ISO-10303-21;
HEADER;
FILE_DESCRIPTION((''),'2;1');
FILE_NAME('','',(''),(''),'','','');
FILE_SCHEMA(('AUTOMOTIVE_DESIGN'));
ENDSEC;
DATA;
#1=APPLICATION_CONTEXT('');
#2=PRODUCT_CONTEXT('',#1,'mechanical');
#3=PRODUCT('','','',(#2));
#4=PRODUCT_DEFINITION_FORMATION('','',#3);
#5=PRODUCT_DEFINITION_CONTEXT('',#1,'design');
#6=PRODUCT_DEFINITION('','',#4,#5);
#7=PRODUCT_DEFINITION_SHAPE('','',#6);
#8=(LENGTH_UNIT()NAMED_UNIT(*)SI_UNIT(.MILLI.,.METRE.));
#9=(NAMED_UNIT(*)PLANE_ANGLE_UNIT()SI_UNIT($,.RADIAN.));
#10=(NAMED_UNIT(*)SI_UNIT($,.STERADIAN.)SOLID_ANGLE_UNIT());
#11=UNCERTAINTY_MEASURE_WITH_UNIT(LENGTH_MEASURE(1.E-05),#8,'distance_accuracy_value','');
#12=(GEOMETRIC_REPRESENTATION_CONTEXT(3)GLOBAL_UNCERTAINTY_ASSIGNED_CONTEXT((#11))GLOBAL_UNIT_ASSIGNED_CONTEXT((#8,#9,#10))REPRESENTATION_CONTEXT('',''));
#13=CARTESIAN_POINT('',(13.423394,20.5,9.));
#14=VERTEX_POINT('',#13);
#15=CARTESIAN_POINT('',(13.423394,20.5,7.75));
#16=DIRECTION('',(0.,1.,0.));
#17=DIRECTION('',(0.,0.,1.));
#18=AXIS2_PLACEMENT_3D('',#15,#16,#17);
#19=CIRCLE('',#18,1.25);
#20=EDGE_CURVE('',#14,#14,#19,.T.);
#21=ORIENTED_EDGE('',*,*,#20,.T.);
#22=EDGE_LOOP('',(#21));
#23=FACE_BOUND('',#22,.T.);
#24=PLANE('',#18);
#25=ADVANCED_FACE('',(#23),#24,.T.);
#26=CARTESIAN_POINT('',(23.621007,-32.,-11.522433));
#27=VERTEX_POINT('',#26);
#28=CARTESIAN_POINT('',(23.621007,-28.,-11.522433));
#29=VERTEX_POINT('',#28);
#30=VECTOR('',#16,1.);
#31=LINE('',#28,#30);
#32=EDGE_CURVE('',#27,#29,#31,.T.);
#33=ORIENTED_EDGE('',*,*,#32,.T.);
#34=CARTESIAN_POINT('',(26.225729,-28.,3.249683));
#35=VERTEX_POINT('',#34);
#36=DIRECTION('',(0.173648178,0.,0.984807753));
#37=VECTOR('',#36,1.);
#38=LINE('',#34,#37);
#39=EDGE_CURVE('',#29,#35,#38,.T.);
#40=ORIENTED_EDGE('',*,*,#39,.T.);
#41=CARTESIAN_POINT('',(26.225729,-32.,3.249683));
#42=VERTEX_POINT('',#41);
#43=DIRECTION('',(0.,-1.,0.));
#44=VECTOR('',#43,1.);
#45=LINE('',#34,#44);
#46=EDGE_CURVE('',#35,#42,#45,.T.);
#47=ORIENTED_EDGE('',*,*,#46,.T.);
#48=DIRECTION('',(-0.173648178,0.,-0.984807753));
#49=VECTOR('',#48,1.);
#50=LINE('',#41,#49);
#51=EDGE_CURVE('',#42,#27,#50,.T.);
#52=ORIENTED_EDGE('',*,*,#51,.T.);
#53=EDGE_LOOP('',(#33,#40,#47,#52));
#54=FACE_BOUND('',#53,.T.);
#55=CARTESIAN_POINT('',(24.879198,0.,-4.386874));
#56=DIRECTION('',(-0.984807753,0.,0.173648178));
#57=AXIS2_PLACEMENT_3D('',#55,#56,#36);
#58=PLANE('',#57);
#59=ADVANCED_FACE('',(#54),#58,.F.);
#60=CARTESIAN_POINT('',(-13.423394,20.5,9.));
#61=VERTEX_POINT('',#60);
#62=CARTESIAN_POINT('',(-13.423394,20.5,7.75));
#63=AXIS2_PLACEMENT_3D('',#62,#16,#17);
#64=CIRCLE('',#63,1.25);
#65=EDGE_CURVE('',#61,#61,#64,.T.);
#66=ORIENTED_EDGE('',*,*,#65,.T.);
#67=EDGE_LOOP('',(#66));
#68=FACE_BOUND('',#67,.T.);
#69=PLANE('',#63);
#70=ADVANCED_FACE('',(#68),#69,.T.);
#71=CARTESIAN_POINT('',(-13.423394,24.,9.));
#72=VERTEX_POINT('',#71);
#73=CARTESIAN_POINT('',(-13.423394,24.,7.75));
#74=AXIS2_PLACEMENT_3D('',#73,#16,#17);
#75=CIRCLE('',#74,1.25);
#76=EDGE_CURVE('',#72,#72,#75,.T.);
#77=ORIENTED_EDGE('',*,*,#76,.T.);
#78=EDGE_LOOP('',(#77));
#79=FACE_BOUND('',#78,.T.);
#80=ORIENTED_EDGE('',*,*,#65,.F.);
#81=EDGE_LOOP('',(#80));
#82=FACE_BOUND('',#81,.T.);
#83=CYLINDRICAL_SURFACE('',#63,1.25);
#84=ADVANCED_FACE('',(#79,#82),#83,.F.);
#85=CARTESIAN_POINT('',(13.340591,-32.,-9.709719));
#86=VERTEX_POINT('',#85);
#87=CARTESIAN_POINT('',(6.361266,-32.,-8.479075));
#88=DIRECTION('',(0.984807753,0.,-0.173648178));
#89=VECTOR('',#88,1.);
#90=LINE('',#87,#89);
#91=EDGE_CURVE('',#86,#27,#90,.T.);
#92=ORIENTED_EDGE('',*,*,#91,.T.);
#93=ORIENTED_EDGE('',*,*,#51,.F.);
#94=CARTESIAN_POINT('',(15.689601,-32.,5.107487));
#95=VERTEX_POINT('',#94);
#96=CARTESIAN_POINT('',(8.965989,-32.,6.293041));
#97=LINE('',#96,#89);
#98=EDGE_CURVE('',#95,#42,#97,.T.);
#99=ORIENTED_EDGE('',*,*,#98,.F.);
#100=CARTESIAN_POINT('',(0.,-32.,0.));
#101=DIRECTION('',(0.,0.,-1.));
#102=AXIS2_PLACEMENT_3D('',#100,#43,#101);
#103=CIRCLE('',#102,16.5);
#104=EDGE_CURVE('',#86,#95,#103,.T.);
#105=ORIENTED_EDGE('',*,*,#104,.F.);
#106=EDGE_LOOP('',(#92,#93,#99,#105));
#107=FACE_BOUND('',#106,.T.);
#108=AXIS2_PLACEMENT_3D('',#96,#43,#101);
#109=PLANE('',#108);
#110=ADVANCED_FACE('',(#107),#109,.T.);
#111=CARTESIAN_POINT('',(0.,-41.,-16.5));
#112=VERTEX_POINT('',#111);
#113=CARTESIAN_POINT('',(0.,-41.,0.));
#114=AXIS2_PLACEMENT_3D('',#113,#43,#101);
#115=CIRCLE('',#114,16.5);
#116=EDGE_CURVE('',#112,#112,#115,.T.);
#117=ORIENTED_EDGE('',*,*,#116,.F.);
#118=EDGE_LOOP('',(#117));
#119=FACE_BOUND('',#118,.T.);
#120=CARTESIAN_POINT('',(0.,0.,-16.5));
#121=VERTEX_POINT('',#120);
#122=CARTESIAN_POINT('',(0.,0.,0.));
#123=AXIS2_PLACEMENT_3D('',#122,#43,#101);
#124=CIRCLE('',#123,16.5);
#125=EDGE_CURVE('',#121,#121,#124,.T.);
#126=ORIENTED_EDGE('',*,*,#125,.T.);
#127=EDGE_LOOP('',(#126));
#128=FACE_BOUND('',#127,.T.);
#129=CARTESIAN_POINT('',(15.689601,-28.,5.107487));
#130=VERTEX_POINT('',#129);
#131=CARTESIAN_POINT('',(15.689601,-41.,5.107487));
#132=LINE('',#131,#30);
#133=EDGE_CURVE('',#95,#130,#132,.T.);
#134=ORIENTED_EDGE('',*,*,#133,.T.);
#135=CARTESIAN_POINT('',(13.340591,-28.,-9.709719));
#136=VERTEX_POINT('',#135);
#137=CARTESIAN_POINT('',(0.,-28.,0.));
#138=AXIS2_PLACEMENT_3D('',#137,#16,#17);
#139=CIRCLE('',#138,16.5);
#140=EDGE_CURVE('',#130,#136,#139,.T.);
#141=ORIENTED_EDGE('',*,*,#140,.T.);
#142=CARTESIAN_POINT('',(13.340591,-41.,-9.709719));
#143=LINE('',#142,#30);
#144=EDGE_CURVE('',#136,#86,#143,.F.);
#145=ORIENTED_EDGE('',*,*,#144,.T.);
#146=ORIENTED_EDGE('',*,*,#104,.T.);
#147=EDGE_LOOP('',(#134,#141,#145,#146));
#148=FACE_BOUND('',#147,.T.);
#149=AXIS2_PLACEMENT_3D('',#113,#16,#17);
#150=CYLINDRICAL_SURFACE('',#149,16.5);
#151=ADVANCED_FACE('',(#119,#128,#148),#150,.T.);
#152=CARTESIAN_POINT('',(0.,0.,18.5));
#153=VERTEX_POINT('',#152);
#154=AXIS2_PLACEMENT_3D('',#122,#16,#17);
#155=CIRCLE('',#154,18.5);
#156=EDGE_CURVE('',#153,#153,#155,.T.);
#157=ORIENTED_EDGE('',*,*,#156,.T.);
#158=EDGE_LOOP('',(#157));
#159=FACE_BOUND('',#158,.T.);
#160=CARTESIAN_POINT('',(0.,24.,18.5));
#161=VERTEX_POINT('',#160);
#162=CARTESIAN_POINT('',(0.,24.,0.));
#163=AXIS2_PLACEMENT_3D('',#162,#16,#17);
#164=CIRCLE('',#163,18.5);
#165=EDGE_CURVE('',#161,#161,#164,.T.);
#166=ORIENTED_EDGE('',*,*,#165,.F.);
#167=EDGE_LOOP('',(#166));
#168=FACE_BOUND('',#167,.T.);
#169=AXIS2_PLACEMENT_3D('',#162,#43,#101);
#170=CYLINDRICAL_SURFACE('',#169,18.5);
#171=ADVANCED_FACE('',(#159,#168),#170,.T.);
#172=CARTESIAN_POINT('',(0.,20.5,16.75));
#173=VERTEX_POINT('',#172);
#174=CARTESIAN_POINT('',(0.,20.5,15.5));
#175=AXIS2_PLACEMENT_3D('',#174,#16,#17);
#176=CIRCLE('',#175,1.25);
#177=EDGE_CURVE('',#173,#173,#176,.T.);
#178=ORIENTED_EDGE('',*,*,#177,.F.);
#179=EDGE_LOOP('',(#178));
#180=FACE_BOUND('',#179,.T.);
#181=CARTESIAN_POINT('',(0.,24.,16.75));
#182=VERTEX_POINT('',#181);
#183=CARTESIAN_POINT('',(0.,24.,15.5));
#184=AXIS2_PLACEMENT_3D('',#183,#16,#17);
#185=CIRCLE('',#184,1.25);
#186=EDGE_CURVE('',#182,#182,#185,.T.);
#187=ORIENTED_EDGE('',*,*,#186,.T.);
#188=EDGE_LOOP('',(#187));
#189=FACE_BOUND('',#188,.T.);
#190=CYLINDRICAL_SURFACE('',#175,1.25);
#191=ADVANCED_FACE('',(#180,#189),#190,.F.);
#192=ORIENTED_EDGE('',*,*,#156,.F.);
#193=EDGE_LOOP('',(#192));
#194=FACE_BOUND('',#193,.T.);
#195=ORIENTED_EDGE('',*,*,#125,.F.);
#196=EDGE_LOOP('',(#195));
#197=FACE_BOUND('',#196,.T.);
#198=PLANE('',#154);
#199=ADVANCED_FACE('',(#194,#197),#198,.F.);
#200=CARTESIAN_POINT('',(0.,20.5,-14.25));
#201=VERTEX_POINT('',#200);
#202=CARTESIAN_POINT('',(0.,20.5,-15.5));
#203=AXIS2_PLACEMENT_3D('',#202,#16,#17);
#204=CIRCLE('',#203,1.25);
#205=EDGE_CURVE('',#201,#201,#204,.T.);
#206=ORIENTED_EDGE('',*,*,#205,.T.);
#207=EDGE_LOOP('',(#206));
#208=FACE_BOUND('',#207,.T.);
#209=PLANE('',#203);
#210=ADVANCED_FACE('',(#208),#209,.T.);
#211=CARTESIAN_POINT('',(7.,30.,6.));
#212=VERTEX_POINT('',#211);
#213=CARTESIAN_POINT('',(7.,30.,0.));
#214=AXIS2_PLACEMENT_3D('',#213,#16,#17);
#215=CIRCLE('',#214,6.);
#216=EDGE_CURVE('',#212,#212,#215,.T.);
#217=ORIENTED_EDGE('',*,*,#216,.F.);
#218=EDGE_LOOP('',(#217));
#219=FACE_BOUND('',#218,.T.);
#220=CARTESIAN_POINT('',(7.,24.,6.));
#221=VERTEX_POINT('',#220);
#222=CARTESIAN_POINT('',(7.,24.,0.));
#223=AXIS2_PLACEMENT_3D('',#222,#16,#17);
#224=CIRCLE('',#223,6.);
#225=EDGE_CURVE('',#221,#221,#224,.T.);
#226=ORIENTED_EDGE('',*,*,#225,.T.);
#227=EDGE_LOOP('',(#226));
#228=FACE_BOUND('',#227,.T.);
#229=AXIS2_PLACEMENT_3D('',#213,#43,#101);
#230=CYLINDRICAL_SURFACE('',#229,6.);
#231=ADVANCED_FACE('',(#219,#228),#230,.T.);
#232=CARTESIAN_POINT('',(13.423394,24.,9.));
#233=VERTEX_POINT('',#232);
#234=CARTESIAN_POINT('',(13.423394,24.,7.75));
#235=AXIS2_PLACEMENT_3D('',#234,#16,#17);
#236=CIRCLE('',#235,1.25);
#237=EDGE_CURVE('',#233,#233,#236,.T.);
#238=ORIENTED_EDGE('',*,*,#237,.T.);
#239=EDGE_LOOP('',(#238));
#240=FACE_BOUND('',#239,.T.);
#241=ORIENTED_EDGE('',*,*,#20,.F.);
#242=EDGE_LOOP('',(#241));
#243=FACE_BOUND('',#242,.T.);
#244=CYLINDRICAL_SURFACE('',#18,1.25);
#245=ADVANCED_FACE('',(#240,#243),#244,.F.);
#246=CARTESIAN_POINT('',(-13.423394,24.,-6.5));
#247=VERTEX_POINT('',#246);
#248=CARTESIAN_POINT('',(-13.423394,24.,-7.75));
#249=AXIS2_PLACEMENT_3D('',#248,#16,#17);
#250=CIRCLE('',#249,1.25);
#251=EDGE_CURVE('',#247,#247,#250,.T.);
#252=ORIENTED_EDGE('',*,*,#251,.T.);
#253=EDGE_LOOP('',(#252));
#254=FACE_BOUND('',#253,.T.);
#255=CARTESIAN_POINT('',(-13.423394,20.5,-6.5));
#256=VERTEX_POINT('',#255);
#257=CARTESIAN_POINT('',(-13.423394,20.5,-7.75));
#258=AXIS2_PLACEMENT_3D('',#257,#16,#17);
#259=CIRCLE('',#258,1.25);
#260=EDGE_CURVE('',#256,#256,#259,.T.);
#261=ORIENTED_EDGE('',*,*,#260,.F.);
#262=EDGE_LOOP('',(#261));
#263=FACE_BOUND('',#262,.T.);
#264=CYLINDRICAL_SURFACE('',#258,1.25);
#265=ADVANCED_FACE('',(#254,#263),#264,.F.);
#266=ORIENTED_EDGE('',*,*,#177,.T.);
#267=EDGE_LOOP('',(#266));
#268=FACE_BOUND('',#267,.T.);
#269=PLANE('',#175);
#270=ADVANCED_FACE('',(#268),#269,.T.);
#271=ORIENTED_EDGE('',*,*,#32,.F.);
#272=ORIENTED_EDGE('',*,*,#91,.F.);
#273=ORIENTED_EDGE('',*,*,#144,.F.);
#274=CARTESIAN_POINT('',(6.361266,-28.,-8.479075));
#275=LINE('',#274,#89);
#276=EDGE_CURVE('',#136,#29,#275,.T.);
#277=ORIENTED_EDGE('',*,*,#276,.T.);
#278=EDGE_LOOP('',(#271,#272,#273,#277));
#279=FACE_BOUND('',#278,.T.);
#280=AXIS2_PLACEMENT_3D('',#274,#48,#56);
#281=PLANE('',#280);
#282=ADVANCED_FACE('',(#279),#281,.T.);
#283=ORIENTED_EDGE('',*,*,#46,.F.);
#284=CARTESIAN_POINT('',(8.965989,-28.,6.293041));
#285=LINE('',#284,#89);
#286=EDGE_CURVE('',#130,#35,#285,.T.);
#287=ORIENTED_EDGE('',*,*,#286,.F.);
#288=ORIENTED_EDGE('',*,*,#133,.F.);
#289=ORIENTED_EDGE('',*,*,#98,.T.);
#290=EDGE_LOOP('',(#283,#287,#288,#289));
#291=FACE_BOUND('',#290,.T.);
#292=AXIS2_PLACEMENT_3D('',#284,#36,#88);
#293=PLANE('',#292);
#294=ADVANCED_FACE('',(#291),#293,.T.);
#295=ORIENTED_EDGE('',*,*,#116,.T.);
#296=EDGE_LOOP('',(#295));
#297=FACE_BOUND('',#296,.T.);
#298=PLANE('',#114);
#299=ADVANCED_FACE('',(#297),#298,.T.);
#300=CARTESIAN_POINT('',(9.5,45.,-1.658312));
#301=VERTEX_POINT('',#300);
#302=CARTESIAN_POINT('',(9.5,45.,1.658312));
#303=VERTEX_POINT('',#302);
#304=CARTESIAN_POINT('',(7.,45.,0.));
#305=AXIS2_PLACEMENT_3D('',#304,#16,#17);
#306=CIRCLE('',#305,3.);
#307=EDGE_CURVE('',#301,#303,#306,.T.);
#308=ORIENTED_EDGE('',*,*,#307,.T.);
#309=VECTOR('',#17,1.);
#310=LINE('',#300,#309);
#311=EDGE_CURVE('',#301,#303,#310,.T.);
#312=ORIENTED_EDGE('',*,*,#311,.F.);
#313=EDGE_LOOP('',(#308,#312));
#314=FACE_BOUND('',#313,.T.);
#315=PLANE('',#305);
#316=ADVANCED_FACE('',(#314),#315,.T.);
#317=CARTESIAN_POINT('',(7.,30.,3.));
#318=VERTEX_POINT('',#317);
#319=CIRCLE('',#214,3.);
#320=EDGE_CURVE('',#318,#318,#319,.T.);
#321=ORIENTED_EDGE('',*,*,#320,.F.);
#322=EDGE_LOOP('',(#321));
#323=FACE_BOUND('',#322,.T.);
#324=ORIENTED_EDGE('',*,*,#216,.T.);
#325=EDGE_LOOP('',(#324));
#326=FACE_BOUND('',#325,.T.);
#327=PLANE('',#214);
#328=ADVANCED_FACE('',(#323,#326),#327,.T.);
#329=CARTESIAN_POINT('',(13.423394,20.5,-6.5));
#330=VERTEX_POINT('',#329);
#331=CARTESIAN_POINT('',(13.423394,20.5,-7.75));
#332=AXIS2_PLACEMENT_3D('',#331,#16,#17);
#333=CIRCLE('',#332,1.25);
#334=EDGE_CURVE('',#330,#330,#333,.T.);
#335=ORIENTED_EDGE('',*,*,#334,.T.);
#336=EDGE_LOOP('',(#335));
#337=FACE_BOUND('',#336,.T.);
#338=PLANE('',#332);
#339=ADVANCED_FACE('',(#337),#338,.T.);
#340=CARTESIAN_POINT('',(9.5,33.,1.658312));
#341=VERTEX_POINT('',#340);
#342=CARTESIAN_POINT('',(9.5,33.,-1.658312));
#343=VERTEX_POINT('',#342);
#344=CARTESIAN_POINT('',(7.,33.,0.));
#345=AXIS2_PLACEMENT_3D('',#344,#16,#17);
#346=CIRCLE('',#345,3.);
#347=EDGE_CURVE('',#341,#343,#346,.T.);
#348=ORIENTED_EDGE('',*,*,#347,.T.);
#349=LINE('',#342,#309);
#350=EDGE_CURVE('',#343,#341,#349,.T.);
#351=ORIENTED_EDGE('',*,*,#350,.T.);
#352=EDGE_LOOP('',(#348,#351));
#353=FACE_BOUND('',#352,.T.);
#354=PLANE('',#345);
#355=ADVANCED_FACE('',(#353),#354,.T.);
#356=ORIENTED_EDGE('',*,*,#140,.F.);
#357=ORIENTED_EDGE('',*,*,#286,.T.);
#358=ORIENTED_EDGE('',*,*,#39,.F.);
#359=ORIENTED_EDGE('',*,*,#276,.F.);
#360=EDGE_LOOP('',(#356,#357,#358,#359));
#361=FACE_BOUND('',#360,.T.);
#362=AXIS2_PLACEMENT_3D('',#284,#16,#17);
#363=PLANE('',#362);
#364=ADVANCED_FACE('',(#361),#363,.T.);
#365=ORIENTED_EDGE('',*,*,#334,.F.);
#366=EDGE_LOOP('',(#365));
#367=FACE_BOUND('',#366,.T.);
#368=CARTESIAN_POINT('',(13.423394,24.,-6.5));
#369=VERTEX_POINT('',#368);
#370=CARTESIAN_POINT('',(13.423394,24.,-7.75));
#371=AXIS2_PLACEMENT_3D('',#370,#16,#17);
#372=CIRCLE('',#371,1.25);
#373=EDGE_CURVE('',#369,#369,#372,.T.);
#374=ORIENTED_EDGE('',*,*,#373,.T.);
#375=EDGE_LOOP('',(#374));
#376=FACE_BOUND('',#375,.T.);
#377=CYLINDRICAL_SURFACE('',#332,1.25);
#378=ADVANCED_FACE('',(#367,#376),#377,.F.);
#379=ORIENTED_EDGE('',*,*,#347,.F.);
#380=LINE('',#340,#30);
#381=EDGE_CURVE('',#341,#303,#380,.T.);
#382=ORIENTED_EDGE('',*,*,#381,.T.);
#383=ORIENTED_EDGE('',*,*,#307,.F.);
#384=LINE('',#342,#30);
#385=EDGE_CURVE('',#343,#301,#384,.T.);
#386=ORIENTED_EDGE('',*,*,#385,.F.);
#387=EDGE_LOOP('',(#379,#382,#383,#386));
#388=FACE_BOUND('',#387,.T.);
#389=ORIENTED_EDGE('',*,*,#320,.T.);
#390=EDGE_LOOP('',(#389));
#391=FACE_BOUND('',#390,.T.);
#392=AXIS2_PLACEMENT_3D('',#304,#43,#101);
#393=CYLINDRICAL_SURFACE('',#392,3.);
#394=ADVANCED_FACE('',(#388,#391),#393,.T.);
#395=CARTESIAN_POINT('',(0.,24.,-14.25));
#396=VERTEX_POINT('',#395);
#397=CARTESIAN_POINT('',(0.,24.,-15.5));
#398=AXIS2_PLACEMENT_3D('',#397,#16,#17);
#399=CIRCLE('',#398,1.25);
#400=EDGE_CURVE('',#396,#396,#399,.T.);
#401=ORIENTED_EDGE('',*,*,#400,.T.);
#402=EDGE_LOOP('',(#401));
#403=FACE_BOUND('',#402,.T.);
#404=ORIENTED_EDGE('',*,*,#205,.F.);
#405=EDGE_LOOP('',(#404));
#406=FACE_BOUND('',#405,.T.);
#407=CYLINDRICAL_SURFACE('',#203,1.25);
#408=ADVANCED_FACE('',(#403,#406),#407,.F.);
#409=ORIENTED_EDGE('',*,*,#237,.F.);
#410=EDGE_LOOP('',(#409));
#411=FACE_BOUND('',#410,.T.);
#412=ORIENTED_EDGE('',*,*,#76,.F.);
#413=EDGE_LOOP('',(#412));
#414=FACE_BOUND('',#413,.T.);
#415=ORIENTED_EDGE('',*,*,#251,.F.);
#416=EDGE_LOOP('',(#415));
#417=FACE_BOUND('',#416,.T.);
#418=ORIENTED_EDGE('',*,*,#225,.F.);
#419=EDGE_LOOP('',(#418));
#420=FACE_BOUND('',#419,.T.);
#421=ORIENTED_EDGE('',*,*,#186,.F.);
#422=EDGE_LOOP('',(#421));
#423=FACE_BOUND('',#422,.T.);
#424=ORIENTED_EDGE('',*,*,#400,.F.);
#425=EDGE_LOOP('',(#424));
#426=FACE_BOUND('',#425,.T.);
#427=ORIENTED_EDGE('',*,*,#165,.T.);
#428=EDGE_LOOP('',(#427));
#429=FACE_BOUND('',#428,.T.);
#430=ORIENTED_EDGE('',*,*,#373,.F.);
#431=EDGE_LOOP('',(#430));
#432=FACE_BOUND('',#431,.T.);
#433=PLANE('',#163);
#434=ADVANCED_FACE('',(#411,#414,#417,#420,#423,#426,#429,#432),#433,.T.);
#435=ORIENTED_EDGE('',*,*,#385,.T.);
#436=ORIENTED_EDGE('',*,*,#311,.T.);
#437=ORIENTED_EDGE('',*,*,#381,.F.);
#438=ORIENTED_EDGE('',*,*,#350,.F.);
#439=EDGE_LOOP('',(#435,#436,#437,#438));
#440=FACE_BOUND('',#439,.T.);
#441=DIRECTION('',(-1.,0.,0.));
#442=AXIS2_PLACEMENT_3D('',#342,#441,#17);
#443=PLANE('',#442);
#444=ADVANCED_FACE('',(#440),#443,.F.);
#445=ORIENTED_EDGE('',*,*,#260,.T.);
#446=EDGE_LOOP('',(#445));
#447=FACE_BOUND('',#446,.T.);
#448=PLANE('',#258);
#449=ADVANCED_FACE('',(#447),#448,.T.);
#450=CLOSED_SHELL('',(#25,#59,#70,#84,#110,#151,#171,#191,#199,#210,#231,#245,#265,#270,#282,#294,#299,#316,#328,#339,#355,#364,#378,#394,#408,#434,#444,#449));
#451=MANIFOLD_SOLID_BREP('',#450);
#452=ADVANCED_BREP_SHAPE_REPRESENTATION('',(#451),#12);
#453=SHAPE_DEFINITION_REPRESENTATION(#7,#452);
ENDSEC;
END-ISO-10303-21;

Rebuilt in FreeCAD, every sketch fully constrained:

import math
import FreeCAD as App
import Part
import Sketcher

doc = App.newDocument("Part")
body = doc.addObject("PartDesign::Body", "Body")

sketch1 = body.newObject("Sketcher::SketchObject", "Sketch")
sketch1.AttachmentSupport = (doc.getObject("XZ_Plane"), [""])
sketch1.MapMode = "FlatFace"
sketch1.addGeometry(Part.Circle(App.Vector(0, 0, 0), App.Vector(0, 0, 1), 18.5), False)
sketch1.addConstraint([
    Sketcher.Constraint("Coincident", 0, 3, -1, 1),
    Sketcher.Constraint("Diameter", 0, 37.0),
])
pad1 = body.newObject("PartDesign::Pad", "Pad")
pad1.Profile = sketch1
pad1.Length = 24
pad1.Reversed = True

sketch2 = body.newObject("Sketcher::SketchObject", "Sketch001")
sketch2.AttachmentSupport = (doc.getObject("XZ_Plane"), [""])
sketch2.MapMode = "FlatFace"
sketch2.addGeometry(Part.Circle(App.Vector(0, 0, 0), App.Vector(0, 0, 1), 16.5), False)
sketch2.addConstraint([
    Sketcher.Constraint("Coincident", 0, 3, -1, 1),
    Sketcher.Constraint("Diameter", 0, 33.0),
])
pad2 = body.newObject("PartDesign::Pad", "Pad001")
pad2.Profile = sketch2
pad2.Length = 41

sketch3 = body.newObject("Sketcher::SketchObject", "Sketch002")
sketch3.AttachmentSupport = (doc.getObject("XZ_Plane"), [""])
sketch3.MapMode = "FlatFace"
sketch3.AttachmentOffset = App.Placement(App.Vector(0, 0, -24), App.Rotation())
sketch3.addGeometry([
    Part.Circle(App.Vector(13.423394, -7.75, 0), App.Vector(0, 0, 1), 1.25),
    Part.Circle(App.Vector(0, -15.5, 0), App.Vector(0, 0, 1), 1.25),
    Part.Circle(App.Vector(13.423394, 7.75, 0), App.Vector(0, 0, 1), 1.25),
    Part.Circle(App.Vector(0, 15.5, 0), App.Vector(0, 0, 1), 1.25),
    Part.Circle(App.Vector(-13.423394, 7.75, 0), App.Vector(0, 0, 1), 1.25),
    Part.Circle(App.Vector(-13.423394, -7.75, 0), App.Vector(0, 0, 1), 1.25),
], False)
sketch3.addConstraint([
    Sketcher.Constraint("Equal", 0, 1),
    Sketcher.Constraint("Equal", 1, 2),
    Sketcher.Constraint("Equal", 2, 3),
    Sketcher.Constraint("Equal", 3, 4),
    Sketcher.Constraint("Equal", 4, 5),
    Sketcher.Constraint("Symmetric", 1, 3, 3, 3, -1, 1),
    Sketcher.Constraint("Symmetric", 0, 3, 4, 3, -1, 1),
    Sketcher.Constraint("Symmetric", 2, 3, 5, 3, -1, 1),
    Sketcher.Constraint("Symmetric", 2, 3, 4, 3, -2),
    Sketcher.Constraint("PointOnObject", 1, 3, -2),
    Sketcher.Constraint("Diameter", 0, 2.5),
    Sketcher.Constraint("DistanceY", 1, 3, 3, 3, 31.0),
    Sketcher.Constraint("DistanceY", 0, 3, 2, 3, 15.5),
    Sketcher.Constraint("DistanceX", -1, 1, 0, 3, 13.423394),
])
pocket1 = body.newObject("PartDesign::Pocket", "Pocket")
pocket1.Profile = sketch3
pocket1.Length = 3.5
pocket1.Reversed = True

sketch4 = body.newObject("Sketcher::SketchObject", "Sketch003")
sketch4.AttachmentSupport = (doc.getObject("XZ_Plane"), [""])
sketch4.MapMode = "FlatFace"
sketch4.AttachmentOffset = App.Placement(App.Vector(0, 0, -24), App.Rotation())
sketch4.addGeometry(Part.Circle(App.Vector(7, 0, 0), App.Vector(0, 0, 1), 6), False)
sketch4.addConstraint([
    Sketcher.Constraint("PointOnObject", 0, 3, -1),
    Sketcher.Constraint("Diameter", 0, 12.0),
    Sketcher.Constraint("DistanceX", -1, 1, 0, 3, 7.0),
])
pad3 = body.newObject("PartDesign::Pad", "Pad002")
pad3.Profile = sketch4
pad3.Length = 6
pad3.Reversed = True

sketch5 = body.newObject("Sketcher::SketchObject", "Sketch004")
sketch5.AttachmentSupport = (doc.getObject("XZ_Plane"), [""])
sketch5.MapMode = "FlatFace"
sketch5.AttachmentOffset = App.Placement(App.Vector(0, 0, -30), App.Rotation())
sketch5.addGeometry(Part.Circle(App.Vector(7, 0, 0), App.Vector(0, 0, 1), 3), False)
sketch5.addConstraint([
    Sketcher.Constraint("PointOnObject", 0, 3, -1),
    Sketcher.Constraint("Diameter", 0, 6.0),
    Sketcher.Constraint("DistanceX", -1, 1, 0, 3, 7.0),
])
pad4 = body.newObject("PartDesign::Pad", "Pad003")
pad4.Profile = sketch5
pad4.Length = 15
pad4.Reversed = True

sketch6 = body.newObject("Sketcher::SketchObject", "Sketch005")
sketch6.AttachmentSupport = (doc.getObject("XZ_Plane"), [""])
sketch6.MapMode = "FlatFace"
sketch6.AttachmentOffset = App.Placement(App.Vector(0, 0, -33), App.Rotation())
sketch6.addGeometry([
    Part.LineSegment(App.Vector(9.5, -1.658312, 0), App.Vector(9.5, 1.658312, 0)),
    Part.ArcOfCircle(Part.Circle(App.Vector(7, 0, 0), App.Vector(0, 0, 1), 3), math.radians(-33.55731), math.radians(33.55731)),
], False)
sketch6.addConstraint([
    Sketcher.Constraint("Coincident", 0, 1, 1, 1),
    Sketcher.Constraint("Coincident", 1, 2, 0, 2),
    Sketcher.Constraint("Vertical", 0),
    Sketcher.Constraint("PointOnObject", 1, 3, -1),
    Sketcher.Constraint("Radius", 1, 3.0),
    Sketcher.Constraint("DistanceX", -1, 1, 1, 3, 7.0),
    Sketcher.Constraint("DistanceX", -1, 1, 0, 1, 9.5),
])
pocket2 = body.newObject("PartDesign::Pocket", "Pocket001")
pocket2.Profile = sketch6
pocket2.Length = 12

sketch7 = body.newObject("Sketcher::SketchObject", "Sketch006")
sketch7.Placement = App.Placement(App.Vector(16.249328, 0, -2.865195), App.Rotation(App.Vector(0, 1, 0), App.Vector(0.173648178, 0, 0.984807753), App.Vector(0.984807753, 0, -0.173648178), "ZXY"))
sketch7.addGeometry([
    Part.LineSegment(App.Vector(-32, 7.754363, 0), App.Vector(-32, -7.245637, 0)),
    Part.LineSegment(App.Vector(-32, -7.245637, 0), App.Vector(-28, -7.245637, 0)),
    Part.LineSegment(App.Vector(-28, -7.245637, 0), App.Vector(-28, 7.754363, 0)),
    Part.LineSegment(App.Vector(-28, 7.754363, 0), App.Vector(-32, 7.754363, 0)),
], False)
sketch7.addConstraint([
    Sketcher.Constraint("Coincident", 0, 2, 1, 1),
    Sketcher.Constraint("Coincident", 1, 2, 2, 1),
    Sketcher.Constraint("Coincident", 2, 2, 3, 1),
    Sketcher.Constraint("Coincident", 3, 2, 0, 1),
    Sketcher.Constraint("Vertical", 0),
    Sketcher.Constraint("Horizontal", 1),
    Sketcher.Constraint("Vertical", 2),
    Sketcher.Constraint("Horizontal", 3),
    Sketcher.Constraint("DistanceX", 1, 1, 1, 2, 4.0),
    Sketcher.Constraint("DistanceY", 0, 2, 0, 1, 15.0),
    Sketcher.Constraint("DistanceX", 0, 2, -1, 1, 32.0),
    Sketcher.Constraint("DistanceY", 0, 2, -1, 1, 7.245637),
])
pad5 = body.newObject("PartDesign::Pad", "Pad004")
pad5.Profile = sketch7
pad5.Length = 17.526
pad5.Midplane = True

doc.recompute()
